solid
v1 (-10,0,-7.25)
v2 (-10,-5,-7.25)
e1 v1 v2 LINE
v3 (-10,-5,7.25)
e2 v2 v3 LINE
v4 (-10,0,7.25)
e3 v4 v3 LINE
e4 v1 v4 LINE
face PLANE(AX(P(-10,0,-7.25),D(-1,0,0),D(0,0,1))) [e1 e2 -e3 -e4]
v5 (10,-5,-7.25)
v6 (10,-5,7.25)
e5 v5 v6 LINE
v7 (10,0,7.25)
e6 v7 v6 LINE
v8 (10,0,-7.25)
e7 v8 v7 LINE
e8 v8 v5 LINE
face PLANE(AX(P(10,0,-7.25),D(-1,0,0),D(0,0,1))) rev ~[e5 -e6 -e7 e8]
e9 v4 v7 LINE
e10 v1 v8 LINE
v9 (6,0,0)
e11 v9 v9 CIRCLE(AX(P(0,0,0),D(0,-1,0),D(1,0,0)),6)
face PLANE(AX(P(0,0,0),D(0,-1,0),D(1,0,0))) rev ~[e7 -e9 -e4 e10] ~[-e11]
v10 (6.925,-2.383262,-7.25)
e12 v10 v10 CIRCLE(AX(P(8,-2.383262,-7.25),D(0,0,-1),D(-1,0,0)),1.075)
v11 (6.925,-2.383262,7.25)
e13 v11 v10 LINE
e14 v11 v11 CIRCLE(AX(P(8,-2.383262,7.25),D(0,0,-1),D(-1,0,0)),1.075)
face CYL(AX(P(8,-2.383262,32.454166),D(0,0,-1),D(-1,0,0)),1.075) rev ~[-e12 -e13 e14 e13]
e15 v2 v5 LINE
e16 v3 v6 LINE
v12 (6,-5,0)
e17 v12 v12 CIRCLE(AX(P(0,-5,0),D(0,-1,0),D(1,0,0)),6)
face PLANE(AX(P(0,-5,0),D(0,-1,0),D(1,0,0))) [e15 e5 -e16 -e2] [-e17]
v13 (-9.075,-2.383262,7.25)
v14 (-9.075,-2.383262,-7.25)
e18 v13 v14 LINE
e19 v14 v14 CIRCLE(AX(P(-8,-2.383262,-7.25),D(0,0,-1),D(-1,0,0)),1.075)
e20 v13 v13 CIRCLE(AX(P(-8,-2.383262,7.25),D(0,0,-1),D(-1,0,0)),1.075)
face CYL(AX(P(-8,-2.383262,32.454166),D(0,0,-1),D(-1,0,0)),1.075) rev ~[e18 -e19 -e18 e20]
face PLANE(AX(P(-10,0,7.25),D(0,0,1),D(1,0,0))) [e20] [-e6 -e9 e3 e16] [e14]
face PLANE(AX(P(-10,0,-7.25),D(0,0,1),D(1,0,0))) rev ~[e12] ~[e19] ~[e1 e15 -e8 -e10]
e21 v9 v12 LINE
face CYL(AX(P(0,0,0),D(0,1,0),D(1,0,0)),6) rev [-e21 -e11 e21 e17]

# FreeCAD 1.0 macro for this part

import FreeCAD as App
import Part
import Sketcher


def add_polygon(sketch, points):
    """Adds a closed chain of lines whose ends are joined by coincident constraints."""
    first, n = sketch.GeometryCount, len(points)
    for a, b in zip(points, points[1:] + points[:1]):
        sketch.addGeometry(Part.LineSegment(App.Vector(*a, 0), App.Vector(*b, 0)), False)
    for i in range(n):
        sketch.addConstraint(Sketcher.Constraint("Coincident", first + i, 2, first + (i + 1) % n, 1))

doc = App.newDocument("Part")
body = doc.addObject("PartDesign::Body", "Body")

sketch1 = body.newObject("Sketcher::SketchObject", "Sketch")
sketch1.AttachmentSupport = (doc.getObject("XZ_Plane"), [""])
sketch1.MapMode = "FlatFace"
add_polygon(sketch1, [(-10, 7), (-10, -7), (10, -7), (10, 7)])
sketch1.addGeometry(Part.Circle(App.Vector(0, 0, 0), App.Vector(0, 0, 1), 6), False)
sketch1.addConstraint(Sketcher.Constraint("Vertical", 0))
sketch1.addConstraint(Sketcher.Constraint("Horizontal", 1))
sketch1.addConstraint(Sketcher.Constraint("Vertical", 2))
sketch1.addConstraint(Sketcher.Constraint("Horizontal", 3))
sketch1.addConstraint(Sketcher.Constraint("Coincident", 4, 3, -1, 1))
sketch1.addConstraint(Sketcher.Constraint("Symmetric", 0, 2, 2, 2, -1, 1))
sketch1.addConstraint(Sketcher.Constraint("Diameter", 4, 12.0))
sketch1.addConstraint(Sketcher.Constraint("DistanceX", 1, 1, 1, 2, 20.0))
sketch1.addConstraint(Sketcher.Constraint("DistanceY", 0, 2, 0, 1, 14.5))
pad1 = body.newObject("PartDesign::Pad", "Pad")
pad1.Profile = sketch1
pad1.Length = 5

sketch2 = body.newObject("Sketcher::SketchObject", "Sketch001")
sketch2.AttachmentSupport = (doc.getObject("XY_Plane"), [""])
sketch2.MapMode = "FlatFace"
sketch2.AttachmentOffset = App.Placement(App.Vector(0, 0, 7.25), App.Rotation())
sketch2.addGeometry(Part.Circle(App.Vector(8, -2.4, 0), App.Vector(0, 0, 1), 1.1), False)
sketch2.addGeometry(Part.Circle(App.Vector(-8, -2.4, 0), App.Vector(0, 0, 1), 1.1), False)
sketch2.addConstraint(Sketcher.Constraint("Equal", 0, 1))
sketch2.addConstraint(Sketcher.Constraint("Symmetric", 0, 3, 1, 3, -2))
sketch2.addConstraint(Sketcher.Constraint("Diameter", 0, 2.15))
sketch2.addConstraint(Sketcher.Constraint("DistanceX", -1, 1, 0, 3, 8.0))
sketch2.addConstraint(Sketcher.Constraint("DistanceY", 0, 3, -1, 1, 2.383262))
doc.recompute()
hole = body.newObject("PartDesign::Hole", "Hole")
hole.Profile = sketch2
hole.ThreadType = "None"
hole.Diameter = 2.15
hole.DepthType = "ThroughAll"

doc.recompute()
